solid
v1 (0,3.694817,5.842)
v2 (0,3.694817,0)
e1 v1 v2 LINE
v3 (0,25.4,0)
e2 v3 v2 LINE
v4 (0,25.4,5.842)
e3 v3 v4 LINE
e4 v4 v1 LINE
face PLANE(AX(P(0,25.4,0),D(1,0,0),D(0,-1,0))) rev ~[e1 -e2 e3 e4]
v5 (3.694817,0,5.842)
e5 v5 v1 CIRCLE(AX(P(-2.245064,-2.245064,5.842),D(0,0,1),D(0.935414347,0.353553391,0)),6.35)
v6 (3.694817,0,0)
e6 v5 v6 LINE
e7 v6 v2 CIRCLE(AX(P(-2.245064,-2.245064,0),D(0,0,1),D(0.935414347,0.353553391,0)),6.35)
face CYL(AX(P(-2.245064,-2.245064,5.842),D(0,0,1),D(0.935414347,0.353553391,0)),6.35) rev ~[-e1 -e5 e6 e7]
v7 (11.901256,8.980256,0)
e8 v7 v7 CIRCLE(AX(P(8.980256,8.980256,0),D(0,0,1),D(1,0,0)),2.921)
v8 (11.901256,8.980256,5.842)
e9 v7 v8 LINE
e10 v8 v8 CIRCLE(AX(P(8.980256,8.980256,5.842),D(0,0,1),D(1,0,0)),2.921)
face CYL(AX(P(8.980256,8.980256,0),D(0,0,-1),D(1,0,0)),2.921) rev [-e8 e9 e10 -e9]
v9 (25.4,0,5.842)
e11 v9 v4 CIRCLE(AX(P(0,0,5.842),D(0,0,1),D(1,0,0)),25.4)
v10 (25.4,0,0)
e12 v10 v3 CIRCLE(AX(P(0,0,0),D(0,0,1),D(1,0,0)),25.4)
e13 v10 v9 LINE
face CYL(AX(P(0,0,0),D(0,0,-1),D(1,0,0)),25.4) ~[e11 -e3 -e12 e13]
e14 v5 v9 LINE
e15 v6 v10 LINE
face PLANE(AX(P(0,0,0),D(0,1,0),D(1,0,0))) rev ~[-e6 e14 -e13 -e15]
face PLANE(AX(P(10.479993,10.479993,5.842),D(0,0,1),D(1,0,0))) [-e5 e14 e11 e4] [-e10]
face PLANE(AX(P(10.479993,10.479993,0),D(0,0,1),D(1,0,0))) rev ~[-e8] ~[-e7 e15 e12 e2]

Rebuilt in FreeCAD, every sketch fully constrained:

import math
import FreeCAD as App
import Part
import Sketcher
from FreeCAD import Vector
Q = App.Units.Quantity

doc = App.newDocument("Part")
body = doc.addObject("PartDesign::Body", "Body")

# Sketch on XY plane
sketch1 = doc.addObject("Sketcher::SketchObject", "Sketch")
body.addObject(sketch1)
sketch1.AttachmentSupport = (doc.XY_Plane, [""])
sketch1.MapMode = "FlatFace"
sketch1.addGeometry([
    Part.LineSegment(Vector(0, 25.4, 0), Vector(0, 0, 0)),
    Part.LineSegment(Vector(0, 0, 0), Vector(25.4, 0, 0)),
    Part.ArcOfCircle(Part.Circle(Vector(0, 0, 0), Vector(0, 0, 1), 25.4), math.radians(0), math.radians(90)),
    Part.Circle(Vector(9, 9, 0), Vector(0, 0, 1), 2.9),
], False)
sketch1.addConstraint([
    Sketcher.Constraint("Coincident", 0, 2, 1, 1),
    Sketcher.Constraint("Coincident", 1, 2, 2, 1),
    Sketcher.Constraint("Coincident", 2, 2, 0, 1),
    Sketcher.Constraint("Vertical", 0),
    Sketcher.Constraint("Horizontal", 1),
    Sketcher.Constraint("Coincident", 2, 3, -1, 1),
    Sketcher.Constraint("Coincident", 0, 2, -1, 1),
    Sketcher.Constraint("Radius", 2, Q("1 in")),
    Sketcher.Constraint("Diameter", 3, Q("0.23 in")),
    Sketcher.Constraint("DistanceX", -1, 1, 3, 3, 8.980256),
    Sketcher.Constraint("DistanceY", -1, 1, 3, 3, 8.980256),
])
pad1 = doc.addObject("PartDesign::Pad", "Pad")
body.addObject(pad1)
pad1.Profile = sketch1
pad1.Length = Q("0.23 in")

# Sketch on XY plane
sketch2 = doc.addObject("Sketcher::SketchObject", "Sketch001")
body.addObject(sketch2)
sketch2.AttachmentSupport = (doc.XY_Plane, [""])
sketch2.MapMode = "FlatFace"
sketch2.AttachmentOffset = App.Placement(Vector(0, 0, 0.23 * 25.4), App.Rotation())
sketch2.addGeometry([
    Part.LineSegment(Vector(0, 0, 0), Vector(3.7, 0, 0)),
    Part.ArcOfCircle(Part.Circle(Vector(-2.2, -2.2, 0), Vector(0, 0, 1), 6.3), math.radians(21), math.radians(69)),
    Part.LineSegment(Vector(0, 3.7, 0), Vector(0, 0, 0)),
], False)
sketch2.addConstraint([
    Sketcher.Constraint("Coincident", 0, 2, 1, 1),
    Sketcher.Constraint("Coincident", 1, 2, 2, 1),
    Sketcher.Constraint("Coincident", 2, 2, 0, 1),
    Sketcher.Constraint("Horizontal", 0),
    Sketcher.Constraint("Vertical", 2),
    Sketcher.Constraint("Coincident", 2, 2, -1, 1),
    Sketcher.Constraint("Equal", 0, 2),
    Sketcher.Constraint("Radius", 1, Q("0.25 in")),
    Sketcher.Constraint("DistanceX", 0, 1, 0, 2, 3.694817),
])
pocket1 = doc.addObject("PartDesign::Pocket", "Pocket")
body.addObject(pocket1)
pocket1.Profile = sketch2
pocket1.Type = "ThroughAll"

doc.recompute()
